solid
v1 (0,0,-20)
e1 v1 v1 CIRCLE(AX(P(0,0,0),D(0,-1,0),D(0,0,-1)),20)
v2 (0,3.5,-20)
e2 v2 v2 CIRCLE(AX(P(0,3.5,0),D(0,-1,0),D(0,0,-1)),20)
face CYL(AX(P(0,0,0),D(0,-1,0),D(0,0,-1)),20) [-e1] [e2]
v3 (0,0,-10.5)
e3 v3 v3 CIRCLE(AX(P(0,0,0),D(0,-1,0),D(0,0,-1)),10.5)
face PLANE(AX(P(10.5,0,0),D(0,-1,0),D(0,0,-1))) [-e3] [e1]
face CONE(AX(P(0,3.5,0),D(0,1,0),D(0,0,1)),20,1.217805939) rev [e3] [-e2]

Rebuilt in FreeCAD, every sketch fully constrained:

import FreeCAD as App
import Part
import Sketcher

V = App.Vector
Q = App.Units.Quantity

doc = App.newDocument("Part")
body = doc.addObject("PartDesign::Body", "Body")

sketch1 = body.newObject("Sketcher::SketchObject", "Sketch")
sketch1.AttachmentSupport = (doc.getObject("XY_Plane"), [""])
sketch1.MapMode = "FlatFace"
sketch1.addGeometry(Part.LineSegment(V(10.5, 0, 0), V(20, 0, 0)), False)
sketch1.addGeometry(Part.LineSegment(V(20, 0, 0), V(20, 3.5, 0)), False)
sketch1.addGeometry(Part.LineSegment(V(20, 3.5, 0), V(10.5, 0, 0)), False)
sketch1.addConstraint(Sketcher.Constraint("Coincident", 0, 2, 1, 1))
sketch1.addConstraint(Sketcher.Constraint("Coincident", 1, 2, 2, 1))
sketch1.addConstraint(Sketcher.Constraint("Coincident", 2, 2, 0, 1))
sketch1.addConstraint(Sketcher.Constraint("Horizontal", 0))
sketch1.addConstraint(Sketcher.Constraint("Vertical", 1))
sketch1.addConstraint(Sketcher.Constraint("PointOnObject", 0, 2, -1))
sketch1.addConstraint(Sketcher.Constraint("DistanceX", 0, 1, 0, 2, Q("9.5 mm")))
sketch1.addConstraint(Sketcher.Constraint("DistanceY", 1, 1, 1, 2, Q("3.5 mm")))
sketch1.addConstraint(Sketcher.Constraint("DistanceX", -1, 1, 0, 2, Q("20 mm")))
revolution = body.newObject("PartDesign::Revolution", "Revolution")
revolution.Profile = sketch1
revolution.ReferenceAxis = (sketch1, ["V_Axis"])
revolution.Angle = 360

doc.recompute()
